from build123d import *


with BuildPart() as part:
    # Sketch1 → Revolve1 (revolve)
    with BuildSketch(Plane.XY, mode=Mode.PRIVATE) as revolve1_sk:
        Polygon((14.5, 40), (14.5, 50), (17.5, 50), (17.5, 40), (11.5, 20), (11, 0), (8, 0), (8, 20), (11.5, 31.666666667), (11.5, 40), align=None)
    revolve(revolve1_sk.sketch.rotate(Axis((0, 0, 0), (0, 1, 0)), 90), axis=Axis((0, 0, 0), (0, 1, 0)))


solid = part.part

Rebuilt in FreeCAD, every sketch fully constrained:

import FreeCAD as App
import Part
import Sketcher
from FreeCAD import Vector


def add_polygon(sketch, points):
    """Adds a closed chain of lines whose ends are joined by coincident constraints."""
    first, n = sketch.GeometryCount, len(points)
    for a, b in zip(points, points[1:] + points[:1]):
        sketch.addGeometry(Part.LineSegment(App.Vector(*a, 0), App.Vector(*b, 0)), False)
    for i in range(n):
        sketch.addConstraint(Sketcher.Constraint("Coincident", first + i, 2, first + (i + 1) % n, 1))

doc = App.newDocument("Part")
body = doc.addObject("PartDesign::Body", "Body")

# Sketch on XY plane
sketch1 = body.newObject("Sketcher::SketchObject", "Sketch")
sketch1.AttachmentSupport = (doc.getObject("XY_Plane"), [""])
sketch1.MapMode = "FlatFace"
add_polygon(sketch1, [(14.5, 50), (14.5, 40), (11.5, 40), (11.5, 31.7), (8, 20), (8, 0), (11, 0), (11.5, 20), (17.5, 40), (17.5, 50)])  # lines 0-9
sketch1.addConstraint([
    Sketcher.Constraint("Vertical", 0),
    Sketcher.Constraint("Horizontal", 1),
    Sketcher.Constraint("Vertical", 2),
    Sketcher.Constraint("Vertical", 4),
    Sketcher.Constraint("Horizontal", 5),
    Sketcher.Constraint("Vertical", 8),
    Sketcher.Constraint("Horizontal", 9),
    Sketcher.Constraint("PointOnObject", 4, 2, -1),
    Sketcher.Constraint("Parallel", 3, 7),
    Sketcher.Constraint("Horizontal", 3, 2, 6, 2),
    Sketcher.Constraint("Horizontal", 1, 2, 7, 2),
    Sketcher.Constraint("Vertical", 2, 2, 6, 2),
    Sketcher.Constraint("Equal", 1, 5),
    Sketcher.Constraint("Equal", 5, 9),
    Sketcher.Constraint("DistanceX", 1, 2, 1, 1, 3.0),
    Sketcher.Constraint("DistanceY", 0, 2, 0, 1, 10.0),
    Sketcher.Constraint("DistanceY", 4, 2, 4, 1, 20.0),
    Sketcher.Constraint("DistanceY", -1, 1, 0, 2, 40.0),
    Sketcher.Constraint("DistanceX", -1, 1, 3, 2, 8.0),
    Sketcher.Constraint("DistanceX", -1, 1, 0, 2, 14.5),
])
revolution = body.newObject("PartDesign::Revolution", "Revolution")
revolution.Profile = sketch1
revolution.ReferenceAxis = (sketch1, ["V_Axis"])
revolution.Angle = 360

doc.recompute()
